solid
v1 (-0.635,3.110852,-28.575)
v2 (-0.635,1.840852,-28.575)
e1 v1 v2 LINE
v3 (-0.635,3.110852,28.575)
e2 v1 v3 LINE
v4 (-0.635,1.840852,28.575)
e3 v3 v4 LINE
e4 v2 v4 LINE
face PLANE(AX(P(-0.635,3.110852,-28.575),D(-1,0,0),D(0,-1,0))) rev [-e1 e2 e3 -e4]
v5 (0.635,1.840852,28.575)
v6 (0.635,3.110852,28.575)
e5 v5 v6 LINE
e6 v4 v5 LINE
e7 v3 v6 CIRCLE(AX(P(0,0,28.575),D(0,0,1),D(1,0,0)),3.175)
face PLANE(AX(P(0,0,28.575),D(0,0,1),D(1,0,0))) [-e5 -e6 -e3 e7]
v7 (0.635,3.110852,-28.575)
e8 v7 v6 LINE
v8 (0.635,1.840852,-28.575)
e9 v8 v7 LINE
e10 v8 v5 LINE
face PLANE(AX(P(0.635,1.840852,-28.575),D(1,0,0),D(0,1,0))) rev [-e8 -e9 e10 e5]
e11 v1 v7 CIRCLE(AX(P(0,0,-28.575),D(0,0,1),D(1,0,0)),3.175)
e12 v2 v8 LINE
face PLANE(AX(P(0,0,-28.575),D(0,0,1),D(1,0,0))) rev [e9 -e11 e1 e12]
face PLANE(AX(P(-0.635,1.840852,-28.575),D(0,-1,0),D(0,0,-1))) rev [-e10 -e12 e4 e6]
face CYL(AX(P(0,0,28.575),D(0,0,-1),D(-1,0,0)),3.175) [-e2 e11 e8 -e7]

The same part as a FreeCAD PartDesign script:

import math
import FreeCAD as App
import Part
import Sketcher

V = App.Vector
Q = App.Units.Quantity

doc = App.newDocument("Part")
params = doc.addObject("Spreadsheet::Sheet", "Params")
for row, (alias, value) in enumerate([
    ("sketch1_diameter", "0.25 in"),
    ("pad1_length", "2.25 in"),
    ("sketch2_radius", "0.125 in"),
    ("sketch2_width", "0.05 in"),
], start=1):
    params.set(f"A{row}", alias)
    params.set(f"B{row}", "=" + value)
    params.setAlias(f"B{row}", alias)

body = doc.addObject("PartDesign::Body", "Body")

sketch1 = body.newObject("Sketcher::SketchObject", "Sketch")
sketch1.AttachmentSupport = (doc.getObject("XY_Plane"), [""])
sketch1.MapMode = "FlatFace"
sketch1.addGeometry(Part.Circle(V(0, 0, 0), V(0, 0, 1), 3.2), False)
sketch1.addConstraint([
    Sketcher.Constraint("Coincident", 0, 3, -1, 1),
    Sketcher.Constraint("Diameter", 0, Q("0.25 in")),
])
sketch1.setExpression("Constraints[1]", "Params.sketch1_diameter")
pad1 = body.newObject("PartDesign::Pad", "Pad")
pad1.Profile = sketch1
pad1.setExpression("Length", "Params.pad1_length")
pad1.Midplane = True

sketch2 = body.newObject("Sketcher::SketchObject", "Sketch001")
sketch2.AttachmentSupport = (doc.getObject("XY_Plane"), [""])
sketch2.MapMode = "FlatFace"
sketch2.AttachmentOffset = App.Placement(V(0, 0, 1.125 * 25.4), App.Rotation())
sketch2.addGeometry([
    Part.LineSegment(V(-0.6, 3.1, 0), V(-0.6, 1.8, 0)),
    Part.LineSegment(V(-0.6, 1.8, 0), V(0.6, 1.8, 0)),
    Part.LineSegment(V(0.6, 1.8, 0), V(0.6, 3.1, 0)),
    Part.ArcOfCircle(Part.Circle(V(0, 0, 0), V(0, 0, 1), 3.2), math.radians(78), math.radians(102)),
], False)
sketch2.addConstraint([
    Sketcher.Constraint("Coincident", 0, 2, 1, 1),
    Sketcher.Constraint("Coincident", 1, 2, 2, 1),
    Sketcher.Constraint("Coincident", 2, 2, 3, 1),
    Sketcher.Constraint("Coincident", 3, 2, 0, 1),
    Sketcher.Constraint("Vertical", 0),
    Sketcher.Constraint("Horizontal", 1),
    Sketcher.Constraint("Vertical", 2),
    Sketcher.Constraint("Coincident", 3, 3, -1, 1),
    Sketcher.Constraint("Horizontal", 2, 2, 3, 2),
    Sketcher.Constraint("Equal", 1, 0),
    Sketcher.Constraint("Radius", 3, Q("0.125 in")),
    Sketcher.Constraint("DistanceX", 1, 1, 1, 2, Q("0.05 in")),
])
sketch2.setExpression("Constraints[10]", "Params.sketch2_radius")
sketch2.setExpression("Constraints[11]", "Params.sketch2_width")
pocket1 = body.newObject("PartDesign::Pocket", "Pocket")
pocket1.Profile = sketch2
pocket1.Type = "ThroughAll"

doc.recompute()
